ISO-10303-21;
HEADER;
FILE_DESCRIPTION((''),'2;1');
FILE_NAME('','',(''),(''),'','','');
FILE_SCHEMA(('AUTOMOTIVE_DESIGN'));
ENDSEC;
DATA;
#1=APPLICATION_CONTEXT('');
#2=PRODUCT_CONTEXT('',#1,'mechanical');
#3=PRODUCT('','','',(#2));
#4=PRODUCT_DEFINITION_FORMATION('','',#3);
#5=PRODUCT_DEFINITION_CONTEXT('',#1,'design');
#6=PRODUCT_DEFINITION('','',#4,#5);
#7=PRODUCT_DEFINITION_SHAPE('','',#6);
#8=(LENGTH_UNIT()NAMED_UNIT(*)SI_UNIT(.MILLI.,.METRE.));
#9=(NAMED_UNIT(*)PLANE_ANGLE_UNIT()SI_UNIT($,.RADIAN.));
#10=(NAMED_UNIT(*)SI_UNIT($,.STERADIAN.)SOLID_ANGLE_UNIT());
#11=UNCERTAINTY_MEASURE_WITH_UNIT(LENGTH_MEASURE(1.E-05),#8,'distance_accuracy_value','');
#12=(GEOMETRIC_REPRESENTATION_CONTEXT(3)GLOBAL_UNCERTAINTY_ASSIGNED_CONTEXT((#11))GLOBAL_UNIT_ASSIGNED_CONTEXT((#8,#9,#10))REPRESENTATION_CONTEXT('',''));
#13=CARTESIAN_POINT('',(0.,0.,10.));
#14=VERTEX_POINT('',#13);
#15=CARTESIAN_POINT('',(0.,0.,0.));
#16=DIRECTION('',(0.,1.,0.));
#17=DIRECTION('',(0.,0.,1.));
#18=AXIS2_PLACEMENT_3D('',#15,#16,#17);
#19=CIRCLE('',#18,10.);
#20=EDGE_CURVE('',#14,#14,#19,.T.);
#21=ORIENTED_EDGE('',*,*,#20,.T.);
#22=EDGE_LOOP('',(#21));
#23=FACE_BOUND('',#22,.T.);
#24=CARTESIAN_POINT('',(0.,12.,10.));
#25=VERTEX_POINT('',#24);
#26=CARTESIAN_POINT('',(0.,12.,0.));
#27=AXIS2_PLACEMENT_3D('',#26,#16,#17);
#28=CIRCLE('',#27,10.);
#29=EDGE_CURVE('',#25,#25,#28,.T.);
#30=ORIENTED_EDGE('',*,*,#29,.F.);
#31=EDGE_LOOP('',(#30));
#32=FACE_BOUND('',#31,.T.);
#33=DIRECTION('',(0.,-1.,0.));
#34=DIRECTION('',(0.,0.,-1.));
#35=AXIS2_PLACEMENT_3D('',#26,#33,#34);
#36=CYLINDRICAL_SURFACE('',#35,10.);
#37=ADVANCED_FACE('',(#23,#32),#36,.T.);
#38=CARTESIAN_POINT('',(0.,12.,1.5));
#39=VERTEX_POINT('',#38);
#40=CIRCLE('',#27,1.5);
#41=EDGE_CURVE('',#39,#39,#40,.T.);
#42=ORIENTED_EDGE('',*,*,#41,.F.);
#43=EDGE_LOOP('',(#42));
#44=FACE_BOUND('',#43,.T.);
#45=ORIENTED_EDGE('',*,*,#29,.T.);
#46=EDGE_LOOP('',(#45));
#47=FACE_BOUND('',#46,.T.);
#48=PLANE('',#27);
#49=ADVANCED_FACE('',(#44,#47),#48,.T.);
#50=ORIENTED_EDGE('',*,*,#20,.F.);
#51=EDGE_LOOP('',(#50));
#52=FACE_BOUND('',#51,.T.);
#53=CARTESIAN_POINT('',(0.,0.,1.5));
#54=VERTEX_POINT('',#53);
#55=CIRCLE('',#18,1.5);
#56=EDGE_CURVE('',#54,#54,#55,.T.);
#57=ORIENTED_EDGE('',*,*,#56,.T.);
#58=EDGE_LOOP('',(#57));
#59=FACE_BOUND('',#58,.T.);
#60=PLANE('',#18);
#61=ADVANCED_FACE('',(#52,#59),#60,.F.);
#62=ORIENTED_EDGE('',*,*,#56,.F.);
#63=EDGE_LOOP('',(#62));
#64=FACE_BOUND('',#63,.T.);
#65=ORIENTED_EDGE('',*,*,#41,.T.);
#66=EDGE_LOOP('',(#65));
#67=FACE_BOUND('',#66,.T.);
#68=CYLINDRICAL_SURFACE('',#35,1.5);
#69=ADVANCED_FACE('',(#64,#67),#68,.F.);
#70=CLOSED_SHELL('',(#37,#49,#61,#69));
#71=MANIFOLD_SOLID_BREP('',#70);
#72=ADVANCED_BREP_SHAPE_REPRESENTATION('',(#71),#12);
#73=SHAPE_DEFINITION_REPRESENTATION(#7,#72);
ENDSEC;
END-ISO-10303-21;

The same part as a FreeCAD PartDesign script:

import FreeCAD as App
import Part
import Sketcher
Q = App.Units.Quantity

doc = App.newDocument("Part")
params = doc.addObject("Spreadsheet::Sheet", "Params")
for row, (alias, value) in enumerate([
    ("sketch1_diameter", "20 mm"),
    ("sketch1_diameter2", "3 mm"),
    ("pad1_length", "12 mm"),
], start=1):
    params.set(f"A{row}", alias)
    params.set(f"B{row}", "=" + value)
    params.setAlias(f"B{row}", alias)

body = doc.addObject("PartDesign::Body", "Body")

# Sketch on XZ plane
sketch1 = body.newObject("Sketcher::SketchObject", "Sketch")
sketch1.AttachmentSupport = (doc.getObject("XZ_Plane"), [""])
sketch1.MapMode = "FlatFace"
sketch1.addGeometry([
    Part.Circle(App.Vector(0, 0, 0), App.Vector(0, 0, 1), 10),
    Part.Circle(App.Vector(0, 0, 0), App.Vector(0, 0, 1), 1.5),
], False)
sketch1.addConstraint([
    Sketcher.Constraint("Coincident", 0, 3, -1, 1),
    Sketcher.Constraint("Coincident", 1, 3, -1, 1),
    Sketcher.Constraint("Diameter", 0, Q("20 mm")),
    Sketcher.Constraint("Diameter", 1, Q("3 mm")),
])
sketch1.setExpression("Constraints[2]", "Params.sketch1_diameter")
sketch1.setExpression("Constraints[3]", "Params.sketch1_diameter2")
pad1 = body.newObject("PartDesign::Pad", "Pad")
pad1.Profile = sketch1
pad1.setExpression("Length", "Params.pad1_length")
pad1.Reversed = True

doc.recompute()
